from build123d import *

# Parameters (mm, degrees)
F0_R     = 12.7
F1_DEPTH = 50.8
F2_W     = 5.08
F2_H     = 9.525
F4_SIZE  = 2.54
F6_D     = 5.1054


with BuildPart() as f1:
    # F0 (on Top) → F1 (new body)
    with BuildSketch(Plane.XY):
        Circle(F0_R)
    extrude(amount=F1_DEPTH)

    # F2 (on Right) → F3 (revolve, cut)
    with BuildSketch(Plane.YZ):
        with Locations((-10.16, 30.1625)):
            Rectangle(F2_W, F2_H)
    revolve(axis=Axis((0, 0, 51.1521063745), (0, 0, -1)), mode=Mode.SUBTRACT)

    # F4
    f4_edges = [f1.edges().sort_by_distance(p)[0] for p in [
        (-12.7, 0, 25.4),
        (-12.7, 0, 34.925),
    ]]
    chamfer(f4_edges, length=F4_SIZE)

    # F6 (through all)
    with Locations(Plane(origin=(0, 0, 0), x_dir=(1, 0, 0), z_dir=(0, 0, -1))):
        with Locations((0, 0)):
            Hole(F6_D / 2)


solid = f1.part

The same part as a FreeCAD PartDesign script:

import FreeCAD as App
import Part
import Sketcher
from FreeCAD import Vector
Q = App.Units.Quantity


def edges_at(feature, points):
    """Names of the edges that pass closest to the given points."""
    edges = feature.Shape.Edges
    near = lambda p: min(range(len(edges)), key=lambda i: edges[i].distToShape(Part.Vertex(*p))[0])
    return sorted({f"Edge{near(p) + 1}" for p in points})


def add_polygon(sketch, points):
    """Adds a closed chain of lines whose ends are joined by coincident constraints."""
    first, n = sketch.GeometryCount, len(points)
    for a, b in zip(points, points[1:] + points[:1]):
        sketch.addGeometry(Part.LineSegment(App.Vector(*a, 0), App.Vector(*b, 0)), False)
    for i in range(n):
        sketch.addConstraint(Sketcher.Constraint("Coincident", first + i, 2, first + (i + 1) % n, 1))

doc = App.newDocument("Part")
body = doc.addObject("PartDesign::Body", "Body")

sketch1 = body.newObject("Sketcher::SketchObject", "Sketch")
sketch1.AttachmentSupport = (doc.getObject("XY_Plane"), [""])
sketch1.MapMode = "FlatFace"
sketch1.addGeometry(Part.Circle(Vector(0, 0, 0), Vector(0, 0, 1), 13), False)
sketch1.addConstraint([
    Sketcher.Constraint("Coincident", 0, 3, -1, 1),
    Sketcher.Constraint("Diameter", 0, Q("1 in")),
])
pad1 = body.newObject("PartDesign::Pad", "Pad")
pad1.Profile = sketch1
pad1.Length = Q("2 in")

sketch2 = body.newObject("Sketcher::SketchObject", "Sketch001")
sketch2.AttachmentSupport = (doc.getObject("YZ_Plane"), [""])
sketch2.MapMode = "FlatFace"
add_polygon(sketch2, [(-13, 35), (-13, 25), (-8, 25), (-8, 35)])
sketch2.addConstraint([
    Sketcher.Constraint("Vertical", 0),
    Sketcher.Constraint("Horizontal", 1),
    Sketcher.Constraint("Vertical", 2),
    Sketcher.Constraint("Horizontal", 3),
    Sketcher.Constraint("DistanceX", 1, 1, 1, 2, Q("0.2 in")),
    Sketcher.Constraint("DistanceY", -1, 1, 0, 2, Q("1 in")),
    Sketcher.Constraint("DistanceX", 0, 2, -1, 1, Q("0.5 in")),
    Sketcher.Constraint("DistanceY", 0, 2, 0, 1, Q("0.375 in")),
])
groove = body.newObject("PartDesign::Groove", "Groove")
groove.Profile = sketch2
groove.ReferenceAxis = (sketch2, ["V_Axis"])
groove.Angle = 360
doc.recompute()

chamfer = body.newObject("PartDesign::Chamfer", "Chamfer")
chamfer.Base = (groove, edges_at(groove, [(-12.7, 0, 25.4), (-12.7, 0, 34.925)]))
chamfer.Size = Q("0.1 in")

sketch3 = body.newObject("Sketcher::SketchObject", "Sketch002")
sketch3.AttachmentSupport = (doc.getObject("XY_Plane"), [""])
sketch3.MapMode = "FlatFace"
sketch3.addGeometry(Part.Circle(Vector(0, 0, 0), Vector(0, 0, 1), 2.6), False)
sketch3.addConstraint([
    Sketcher.Constraint("Coincident", 0, 3, -1, 1),
    Sketcher.Constraint("Diameter", 0, Q("0.201 in")),
])
doc.recompute()
hole = body.newObject("PartDesign::Hole", "Hole")
hole.Profile = sketch3
hole.ThreadType = "None"
hole.Diameter = Q("0.201 in")
hole.DepthType = "ThroughAll"
hole.Reversed = True

doc.recompute()
